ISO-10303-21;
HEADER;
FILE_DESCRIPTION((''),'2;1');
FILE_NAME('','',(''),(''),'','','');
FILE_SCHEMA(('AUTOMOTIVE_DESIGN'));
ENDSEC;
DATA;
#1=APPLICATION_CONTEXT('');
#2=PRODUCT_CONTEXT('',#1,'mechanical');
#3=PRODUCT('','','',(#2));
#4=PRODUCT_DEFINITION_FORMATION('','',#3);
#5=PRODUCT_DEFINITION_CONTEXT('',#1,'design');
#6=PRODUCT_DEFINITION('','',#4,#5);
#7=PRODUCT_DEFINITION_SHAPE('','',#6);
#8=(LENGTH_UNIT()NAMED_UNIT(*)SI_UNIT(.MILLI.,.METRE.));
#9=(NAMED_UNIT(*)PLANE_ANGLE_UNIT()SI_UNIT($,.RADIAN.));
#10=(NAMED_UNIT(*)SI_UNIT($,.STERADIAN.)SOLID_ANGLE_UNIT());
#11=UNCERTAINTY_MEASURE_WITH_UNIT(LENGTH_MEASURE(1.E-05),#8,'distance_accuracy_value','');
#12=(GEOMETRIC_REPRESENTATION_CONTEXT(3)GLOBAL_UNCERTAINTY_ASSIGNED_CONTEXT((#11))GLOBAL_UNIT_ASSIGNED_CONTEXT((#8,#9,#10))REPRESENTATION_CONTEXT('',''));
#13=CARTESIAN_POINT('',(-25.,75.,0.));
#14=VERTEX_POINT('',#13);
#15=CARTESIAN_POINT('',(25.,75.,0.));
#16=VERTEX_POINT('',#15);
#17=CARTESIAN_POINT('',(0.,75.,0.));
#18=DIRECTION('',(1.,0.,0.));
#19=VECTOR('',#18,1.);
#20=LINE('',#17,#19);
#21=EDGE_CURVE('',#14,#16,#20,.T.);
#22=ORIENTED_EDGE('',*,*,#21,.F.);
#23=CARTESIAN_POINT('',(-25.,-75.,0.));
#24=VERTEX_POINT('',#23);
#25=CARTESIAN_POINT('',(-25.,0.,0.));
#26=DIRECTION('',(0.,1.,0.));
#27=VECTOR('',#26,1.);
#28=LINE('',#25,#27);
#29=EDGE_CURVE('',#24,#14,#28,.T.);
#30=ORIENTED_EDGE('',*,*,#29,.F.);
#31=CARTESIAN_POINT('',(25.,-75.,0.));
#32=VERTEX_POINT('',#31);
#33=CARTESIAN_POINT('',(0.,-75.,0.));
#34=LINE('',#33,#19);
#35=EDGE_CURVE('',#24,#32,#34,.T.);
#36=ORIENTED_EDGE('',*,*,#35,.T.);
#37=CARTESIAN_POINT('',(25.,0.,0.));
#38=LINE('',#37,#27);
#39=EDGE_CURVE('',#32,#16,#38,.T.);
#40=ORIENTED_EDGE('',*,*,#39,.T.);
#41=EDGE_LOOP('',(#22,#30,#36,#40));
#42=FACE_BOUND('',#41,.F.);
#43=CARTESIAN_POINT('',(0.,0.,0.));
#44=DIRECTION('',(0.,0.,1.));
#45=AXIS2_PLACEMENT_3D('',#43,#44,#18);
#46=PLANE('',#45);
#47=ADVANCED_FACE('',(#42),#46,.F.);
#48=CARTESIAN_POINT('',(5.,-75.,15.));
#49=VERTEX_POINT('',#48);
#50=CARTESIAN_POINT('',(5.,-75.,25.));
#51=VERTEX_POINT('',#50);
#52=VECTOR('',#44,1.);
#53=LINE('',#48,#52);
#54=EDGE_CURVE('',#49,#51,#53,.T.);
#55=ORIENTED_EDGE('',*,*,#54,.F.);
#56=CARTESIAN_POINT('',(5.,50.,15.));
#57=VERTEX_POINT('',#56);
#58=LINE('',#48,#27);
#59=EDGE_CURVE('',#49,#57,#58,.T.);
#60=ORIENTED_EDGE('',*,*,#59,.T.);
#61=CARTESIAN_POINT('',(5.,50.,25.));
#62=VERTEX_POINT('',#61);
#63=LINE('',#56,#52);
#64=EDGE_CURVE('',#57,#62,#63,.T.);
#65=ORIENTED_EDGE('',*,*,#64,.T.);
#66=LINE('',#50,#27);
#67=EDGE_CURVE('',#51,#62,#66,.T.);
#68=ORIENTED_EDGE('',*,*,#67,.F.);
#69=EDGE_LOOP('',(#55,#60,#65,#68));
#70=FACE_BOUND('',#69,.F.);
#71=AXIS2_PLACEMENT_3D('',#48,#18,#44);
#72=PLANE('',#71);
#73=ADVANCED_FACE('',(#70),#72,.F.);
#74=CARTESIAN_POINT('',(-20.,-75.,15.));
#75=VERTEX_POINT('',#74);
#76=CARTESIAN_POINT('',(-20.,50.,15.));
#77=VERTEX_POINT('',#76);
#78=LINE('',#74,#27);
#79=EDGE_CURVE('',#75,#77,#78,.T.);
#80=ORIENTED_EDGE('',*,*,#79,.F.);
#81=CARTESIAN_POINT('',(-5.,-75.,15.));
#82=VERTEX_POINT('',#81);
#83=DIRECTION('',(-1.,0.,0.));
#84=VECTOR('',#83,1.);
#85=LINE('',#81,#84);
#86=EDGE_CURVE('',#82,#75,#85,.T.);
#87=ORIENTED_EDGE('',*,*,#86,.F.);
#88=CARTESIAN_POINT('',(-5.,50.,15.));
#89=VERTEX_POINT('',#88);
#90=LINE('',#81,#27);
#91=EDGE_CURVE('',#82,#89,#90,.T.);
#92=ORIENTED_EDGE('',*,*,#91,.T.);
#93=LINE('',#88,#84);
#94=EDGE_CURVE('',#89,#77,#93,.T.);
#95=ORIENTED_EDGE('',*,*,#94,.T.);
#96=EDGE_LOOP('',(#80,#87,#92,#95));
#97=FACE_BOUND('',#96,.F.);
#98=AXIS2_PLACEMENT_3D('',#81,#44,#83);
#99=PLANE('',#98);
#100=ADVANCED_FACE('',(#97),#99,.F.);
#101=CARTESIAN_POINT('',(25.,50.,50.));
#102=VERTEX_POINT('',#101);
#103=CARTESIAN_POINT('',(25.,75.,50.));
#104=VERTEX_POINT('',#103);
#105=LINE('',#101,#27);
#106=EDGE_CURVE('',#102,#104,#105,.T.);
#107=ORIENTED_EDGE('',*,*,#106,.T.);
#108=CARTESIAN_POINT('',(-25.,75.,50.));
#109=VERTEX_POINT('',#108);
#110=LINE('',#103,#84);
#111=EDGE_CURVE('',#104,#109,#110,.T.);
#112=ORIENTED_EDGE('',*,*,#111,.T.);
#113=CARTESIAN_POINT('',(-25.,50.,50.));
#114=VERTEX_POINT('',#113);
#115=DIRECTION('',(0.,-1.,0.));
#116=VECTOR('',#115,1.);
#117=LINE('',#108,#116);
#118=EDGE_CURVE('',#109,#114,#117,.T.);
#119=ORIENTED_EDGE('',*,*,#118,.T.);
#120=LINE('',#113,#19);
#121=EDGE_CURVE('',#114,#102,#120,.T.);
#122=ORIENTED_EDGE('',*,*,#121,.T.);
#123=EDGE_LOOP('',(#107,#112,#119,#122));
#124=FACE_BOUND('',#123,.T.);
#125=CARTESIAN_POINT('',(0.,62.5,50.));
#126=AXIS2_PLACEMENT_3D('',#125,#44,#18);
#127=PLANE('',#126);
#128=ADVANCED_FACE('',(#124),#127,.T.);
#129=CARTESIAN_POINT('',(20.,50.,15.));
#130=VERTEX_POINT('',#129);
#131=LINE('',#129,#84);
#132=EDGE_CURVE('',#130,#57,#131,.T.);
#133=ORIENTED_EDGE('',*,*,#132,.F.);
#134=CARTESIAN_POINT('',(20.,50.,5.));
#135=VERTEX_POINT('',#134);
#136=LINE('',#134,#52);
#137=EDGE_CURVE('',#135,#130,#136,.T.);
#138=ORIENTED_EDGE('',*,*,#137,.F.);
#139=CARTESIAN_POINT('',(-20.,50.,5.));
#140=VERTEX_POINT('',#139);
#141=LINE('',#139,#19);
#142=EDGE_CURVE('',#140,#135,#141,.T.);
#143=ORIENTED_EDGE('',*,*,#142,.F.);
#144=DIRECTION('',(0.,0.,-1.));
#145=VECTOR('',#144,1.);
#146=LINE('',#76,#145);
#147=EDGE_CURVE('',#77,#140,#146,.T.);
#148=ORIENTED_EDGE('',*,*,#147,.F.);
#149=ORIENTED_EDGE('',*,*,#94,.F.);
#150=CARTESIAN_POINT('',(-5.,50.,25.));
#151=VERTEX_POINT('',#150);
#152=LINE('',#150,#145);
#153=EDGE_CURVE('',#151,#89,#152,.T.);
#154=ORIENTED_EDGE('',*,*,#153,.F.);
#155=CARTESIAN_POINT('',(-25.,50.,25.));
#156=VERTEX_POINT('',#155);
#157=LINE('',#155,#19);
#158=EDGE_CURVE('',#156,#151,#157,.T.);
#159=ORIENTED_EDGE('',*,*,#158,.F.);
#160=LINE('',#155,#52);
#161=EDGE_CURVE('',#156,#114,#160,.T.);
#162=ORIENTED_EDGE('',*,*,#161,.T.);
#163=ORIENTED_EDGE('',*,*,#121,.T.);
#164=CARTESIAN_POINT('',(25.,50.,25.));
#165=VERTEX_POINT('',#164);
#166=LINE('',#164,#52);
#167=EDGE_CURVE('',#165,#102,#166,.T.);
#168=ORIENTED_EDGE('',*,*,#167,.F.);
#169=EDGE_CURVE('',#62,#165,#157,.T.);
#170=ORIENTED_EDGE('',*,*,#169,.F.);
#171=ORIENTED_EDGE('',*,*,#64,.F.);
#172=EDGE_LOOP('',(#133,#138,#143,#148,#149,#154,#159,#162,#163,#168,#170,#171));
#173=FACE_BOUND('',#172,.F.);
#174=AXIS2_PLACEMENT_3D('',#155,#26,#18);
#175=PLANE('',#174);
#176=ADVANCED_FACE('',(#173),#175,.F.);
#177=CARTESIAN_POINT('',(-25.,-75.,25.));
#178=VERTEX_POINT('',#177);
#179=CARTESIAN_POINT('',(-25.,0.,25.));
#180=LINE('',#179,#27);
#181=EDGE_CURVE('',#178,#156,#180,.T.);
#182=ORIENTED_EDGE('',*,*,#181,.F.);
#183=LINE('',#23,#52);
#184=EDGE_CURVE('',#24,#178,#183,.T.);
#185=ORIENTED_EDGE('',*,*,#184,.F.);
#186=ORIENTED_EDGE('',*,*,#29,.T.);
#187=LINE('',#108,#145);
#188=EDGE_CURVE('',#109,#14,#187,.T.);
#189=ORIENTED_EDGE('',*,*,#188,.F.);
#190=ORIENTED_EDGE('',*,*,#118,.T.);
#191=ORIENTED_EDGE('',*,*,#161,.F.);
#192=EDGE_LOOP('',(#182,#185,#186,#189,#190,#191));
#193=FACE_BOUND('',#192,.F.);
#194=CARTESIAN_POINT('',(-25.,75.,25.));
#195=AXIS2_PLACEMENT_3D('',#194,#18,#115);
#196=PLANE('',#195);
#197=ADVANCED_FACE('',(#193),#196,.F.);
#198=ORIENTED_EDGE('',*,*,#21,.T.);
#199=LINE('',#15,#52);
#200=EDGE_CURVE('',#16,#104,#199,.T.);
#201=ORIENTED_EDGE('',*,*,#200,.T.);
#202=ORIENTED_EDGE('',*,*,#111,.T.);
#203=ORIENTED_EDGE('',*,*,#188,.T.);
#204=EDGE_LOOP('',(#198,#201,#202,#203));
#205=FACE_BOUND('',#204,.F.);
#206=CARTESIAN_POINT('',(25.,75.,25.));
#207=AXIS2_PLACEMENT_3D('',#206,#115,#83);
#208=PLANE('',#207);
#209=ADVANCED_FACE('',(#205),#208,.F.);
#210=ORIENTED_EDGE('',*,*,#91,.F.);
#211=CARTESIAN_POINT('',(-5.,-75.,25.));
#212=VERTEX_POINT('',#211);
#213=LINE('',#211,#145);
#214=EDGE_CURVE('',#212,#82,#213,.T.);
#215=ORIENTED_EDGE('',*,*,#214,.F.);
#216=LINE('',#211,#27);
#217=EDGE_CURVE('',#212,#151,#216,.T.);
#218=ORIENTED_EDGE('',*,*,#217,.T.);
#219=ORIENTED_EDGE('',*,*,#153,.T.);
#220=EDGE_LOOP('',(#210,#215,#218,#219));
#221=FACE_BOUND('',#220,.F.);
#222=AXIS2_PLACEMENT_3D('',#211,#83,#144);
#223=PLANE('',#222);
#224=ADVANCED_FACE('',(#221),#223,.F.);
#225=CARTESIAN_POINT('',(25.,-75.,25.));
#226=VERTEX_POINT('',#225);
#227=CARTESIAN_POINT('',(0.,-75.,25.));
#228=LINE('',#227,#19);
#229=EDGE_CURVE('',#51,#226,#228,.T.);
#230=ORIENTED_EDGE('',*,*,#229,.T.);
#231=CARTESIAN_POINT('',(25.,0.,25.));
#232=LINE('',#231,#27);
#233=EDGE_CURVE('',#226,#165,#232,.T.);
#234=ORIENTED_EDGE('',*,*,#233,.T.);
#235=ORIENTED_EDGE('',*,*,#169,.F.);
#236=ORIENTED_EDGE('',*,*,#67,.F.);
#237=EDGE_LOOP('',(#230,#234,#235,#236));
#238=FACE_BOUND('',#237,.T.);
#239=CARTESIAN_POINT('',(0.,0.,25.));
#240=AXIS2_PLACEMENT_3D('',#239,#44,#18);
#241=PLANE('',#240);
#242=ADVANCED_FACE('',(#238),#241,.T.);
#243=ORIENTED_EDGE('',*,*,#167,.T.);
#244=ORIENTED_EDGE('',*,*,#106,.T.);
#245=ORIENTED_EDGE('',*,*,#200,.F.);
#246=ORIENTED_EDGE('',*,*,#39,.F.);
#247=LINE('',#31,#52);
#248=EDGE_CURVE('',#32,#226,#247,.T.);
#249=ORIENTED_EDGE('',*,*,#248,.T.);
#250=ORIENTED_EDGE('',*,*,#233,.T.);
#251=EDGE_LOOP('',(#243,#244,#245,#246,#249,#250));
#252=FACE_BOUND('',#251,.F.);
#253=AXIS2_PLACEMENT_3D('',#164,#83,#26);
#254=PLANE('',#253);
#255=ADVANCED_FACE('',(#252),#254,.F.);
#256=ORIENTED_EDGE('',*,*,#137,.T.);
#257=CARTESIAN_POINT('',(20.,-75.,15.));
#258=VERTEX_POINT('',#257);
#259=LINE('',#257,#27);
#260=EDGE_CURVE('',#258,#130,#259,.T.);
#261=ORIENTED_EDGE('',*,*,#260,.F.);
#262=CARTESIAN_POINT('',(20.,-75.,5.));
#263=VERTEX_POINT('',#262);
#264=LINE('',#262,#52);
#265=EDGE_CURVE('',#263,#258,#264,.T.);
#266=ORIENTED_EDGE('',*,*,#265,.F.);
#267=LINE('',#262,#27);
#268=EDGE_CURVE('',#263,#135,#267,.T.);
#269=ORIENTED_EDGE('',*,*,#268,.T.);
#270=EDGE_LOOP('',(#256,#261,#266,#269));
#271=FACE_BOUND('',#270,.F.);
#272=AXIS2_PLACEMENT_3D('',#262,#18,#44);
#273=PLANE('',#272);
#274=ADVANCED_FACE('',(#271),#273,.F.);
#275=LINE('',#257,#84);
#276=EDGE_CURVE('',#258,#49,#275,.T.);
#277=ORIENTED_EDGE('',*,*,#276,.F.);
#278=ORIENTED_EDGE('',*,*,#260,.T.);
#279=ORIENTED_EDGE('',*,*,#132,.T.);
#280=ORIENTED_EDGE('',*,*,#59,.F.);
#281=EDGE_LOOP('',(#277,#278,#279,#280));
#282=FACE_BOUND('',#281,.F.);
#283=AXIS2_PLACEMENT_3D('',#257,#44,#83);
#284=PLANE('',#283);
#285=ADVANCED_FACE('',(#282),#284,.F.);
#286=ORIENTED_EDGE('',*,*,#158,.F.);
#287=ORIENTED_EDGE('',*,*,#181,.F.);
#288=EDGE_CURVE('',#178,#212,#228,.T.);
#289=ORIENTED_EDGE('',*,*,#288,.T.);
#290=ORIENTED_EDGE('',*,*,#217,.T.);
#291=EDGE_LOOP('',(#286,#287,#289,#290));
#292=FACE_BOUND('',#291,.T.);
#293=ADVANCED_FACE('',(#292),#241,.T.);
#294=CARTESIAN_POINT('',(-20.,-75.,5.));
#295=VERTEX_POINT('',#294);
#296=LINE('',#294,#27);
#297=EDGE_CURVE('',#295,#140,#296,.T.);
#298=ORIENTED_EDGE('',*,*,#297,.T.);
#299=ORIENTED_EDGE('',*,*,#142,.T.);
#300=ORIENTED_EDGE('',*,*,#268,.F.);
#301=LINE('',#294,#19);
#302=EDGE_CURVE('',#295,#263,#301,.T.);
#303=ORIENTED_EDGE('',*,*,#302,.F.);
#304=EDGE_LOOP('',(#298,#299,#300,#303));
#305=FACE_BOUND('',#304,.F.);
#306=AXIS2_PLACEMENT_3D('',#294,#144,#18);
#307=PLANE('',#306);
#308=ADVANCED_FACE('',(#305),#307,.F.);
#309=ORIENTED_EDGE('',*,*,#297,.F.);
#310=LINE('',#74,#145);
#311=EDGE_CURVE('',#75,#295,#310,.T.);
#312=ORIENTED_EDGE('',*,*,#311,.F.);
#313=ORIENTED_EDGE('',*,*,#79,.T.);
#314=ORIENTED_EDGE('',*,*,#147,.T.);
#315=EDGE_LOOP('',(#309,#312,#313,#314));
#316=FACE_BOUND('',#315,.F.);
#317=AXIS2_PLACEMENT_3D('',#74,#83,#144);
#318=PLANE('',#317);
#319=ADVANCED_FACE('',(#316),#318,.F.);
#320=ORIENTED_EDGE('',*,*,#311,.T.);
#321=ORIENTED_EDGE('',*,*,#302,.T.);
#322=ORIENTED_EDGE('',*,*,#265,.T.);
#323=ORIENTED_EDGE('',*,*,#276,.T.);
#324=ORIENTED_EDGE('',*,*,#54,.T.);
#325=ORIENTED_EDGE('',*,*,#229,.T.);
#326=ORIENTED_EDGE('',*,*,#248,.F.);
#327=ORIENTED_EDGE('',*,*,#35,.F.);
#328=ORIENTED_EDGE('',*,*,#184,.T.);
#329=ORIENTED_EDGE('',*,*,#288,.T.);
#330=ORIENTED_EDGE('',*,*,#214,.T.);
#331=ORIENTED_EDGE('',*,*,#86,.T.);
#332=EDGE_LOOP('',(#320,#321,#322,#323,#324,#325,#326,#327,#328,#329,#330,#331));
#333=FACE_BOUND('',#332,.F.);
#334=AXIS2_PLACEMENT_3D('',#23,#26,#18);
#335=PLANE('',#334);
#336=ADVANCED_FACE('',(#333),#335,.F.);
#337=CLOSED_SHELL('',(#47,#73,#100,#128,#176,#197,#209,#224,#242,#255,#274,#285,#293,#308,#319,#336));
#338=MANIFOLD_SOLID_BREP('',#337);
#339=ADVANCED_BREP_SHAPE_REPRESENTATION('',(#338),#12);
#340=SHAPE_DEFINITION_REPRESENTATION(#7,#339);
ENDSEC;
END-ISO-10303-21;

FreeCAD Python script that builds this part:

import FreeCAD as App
import Part
import Sketcher
Q = App.Units.Quantity


def add_polygon(sketch, points):
    """Adds a closed chain of lines whose ends are joined by coincident constraints."""
    first, n = sketch.GeometryCount, len(points)
    for a, b in zip(points, points[1:] + points[:1]):
        sketch.addGeometry(Part.LineSegment(App.Vector(*a, 0), App.Vector(*b, 0)), False)
    for i in range(n):
        sketch.addConstraint(Sketcher.Constraint("Coincident", first + i, 2, first + (i + 1) % n, 1))

doc = App.newDocument("Part")
body = doc.addObject("PartDesign::Body", "Body")

sketch1 = body.newObject("Sketcher::SketchObject", "Sketch")
sketch1.AttachmentSupport = (doc.getObject("XY_Plane"), [""])
sketch1.MapMode = "FlatFace"
add_polygon(sketch1, [(-25, 75), (-25, -75), (25, -75), (25, 75)])
sketch1.addConstraint(Sketcher.Constraint("Vertical", 0))
sketch1.addConstraint(Sketcher.Constraint("Horizontal", 1))
sketch1.addConstraint(Sketcher.Constraint("Vertical", 2))
sketch1.addConstraint(Sketcher.Constraint("Horizontal", 3))
sketch1.addConstraint(Sketcher.Constraint("Symmetric", 0, 2, 2, 2, -1, 1))
sketch1.addConstraint(Sketcher.Constraint("DistanceX", 1, 1, 1, 2, Q("50 mm")))
sketch1.addConstraint(Sketcher.Constraint("DistanceY", 0, 2, 0, 1, Q("150 mm")))
pad1 = body.newObject("PartDesign::Pad", "Pad")
pad1.Profile = sketch1
pad1.Length = 25

sketch2 = body.newObject("Sketcher::SketchObject", "Sketch001")
sketch2.AttachmentSupport = (doc.getObject("XZ_Plane"), [""])
sketch2.MapMode = "FlatFace"
sketch2.AttachmentOffset = App.Placement(App.Vector(0, 0, 75), App.Rotation())
add_polygon(sketch2, [(5, 25), (-5, 25), (-5, 15), (-20, 15), (-20, 5), (20, 5), (20, 15), (5, 15)])
sketch2.addConstraint(Sketcher.Constraint("Horizontal", 0))
sketch2.addConstraint(Sketcher.Constraint("Vertical", 1))
sketch2.addConstraint(Sketcher.Constraint("Horizontal", 2))
sketch2.addConstraint(Sketcher.Constraint("Vertical", 3))
sketch2.addConstraint(Sketcher.Constraint("Horizontal", 4))
sketch2.addConstraint(Sketcher.Constraint("Vertical", 5))
sketch2.addConstraint(Sketcher.Constraint("Horizontal", 6))
sketch2.addConstraint(Sketcher.Constraint("Vertical", 7))
sketch2.addConstraint(Sketcher.Constraint("Symmetric", 2, 2, 5, 2, -2))
sketch2.addConstraint(Sketcher.Constraint("Equal", 2, 6))
sketch2.addConstraint(Sketcher.Constraint("Equal", 0, 1))
sketch2.addConstraint(Sketcher.Constraint("Equal", 1, 3))
sketch2.addConstraint(Sketcher.Constraint("DistanceX", 0, 2, 0, 1, Q("10 mm")))
sketch2.addConstraint(Sketcher.Constraint("DistanceX", 2, 2, 2, 1, Q("15 mm")))
sketch2.addConstraint(Sketcher.Constraint("DistanceY", -1, 1, 0, 2, Q("25 mm")))
pocket1 = body.newObject("PartDesign::Pocket", "Pocket")
pocket1.Profile = sketch2
pocket1.Length = 125

sketch3 = body.newObject("Sketcher::SketchObject", "Sketch002")
sketch3.AttachmentSupport = (doc.getObject("XY_Plane"), [""])
sketch3.MapMode = "FlatFace"
sketch3.AttachmentOffset = App.Placement(App.Vector(0, 0, 25), App.Rotation())
add_polygon(sketch3, [(-25, 50), (25, 50), (25, 75), (-25, 75)])
sketch3.addConstraint(Sketcher.Constraint("Horizontal", 0))
sketch3.addConstraint(Sketcher.Constraint("Vertical", 1))
sketch3.addConstraint(Sketcher.Constraint("Horizontal", 2))
sketch3.addConstraint(Sketcher.Constraint("Vertical", 3))
sketch3.addConstraint(Sketcher.Constraint("DistanceX", 0, 1, 0, 2, Q("50 mm")))
sketch3.addConstraint(Sketcher.Constraint("DistanceY", 1, 1, 1, 2, Q("25 mm")))
sketch3.addConstraint(Sketcher.Constraint("DistanceX", -1, 1, 0, 2, Q("25 mm")))
sketch3.addConstraint(Sketcher.Constraint("DistanceY", -1, 1, 0, 2, Q("50 mm")))
pad2 = body.newObject("PartDesign::Pad", "Pad001")
pad2.Profile = sketch3
pad2.Length = 25

doc.recompute()
